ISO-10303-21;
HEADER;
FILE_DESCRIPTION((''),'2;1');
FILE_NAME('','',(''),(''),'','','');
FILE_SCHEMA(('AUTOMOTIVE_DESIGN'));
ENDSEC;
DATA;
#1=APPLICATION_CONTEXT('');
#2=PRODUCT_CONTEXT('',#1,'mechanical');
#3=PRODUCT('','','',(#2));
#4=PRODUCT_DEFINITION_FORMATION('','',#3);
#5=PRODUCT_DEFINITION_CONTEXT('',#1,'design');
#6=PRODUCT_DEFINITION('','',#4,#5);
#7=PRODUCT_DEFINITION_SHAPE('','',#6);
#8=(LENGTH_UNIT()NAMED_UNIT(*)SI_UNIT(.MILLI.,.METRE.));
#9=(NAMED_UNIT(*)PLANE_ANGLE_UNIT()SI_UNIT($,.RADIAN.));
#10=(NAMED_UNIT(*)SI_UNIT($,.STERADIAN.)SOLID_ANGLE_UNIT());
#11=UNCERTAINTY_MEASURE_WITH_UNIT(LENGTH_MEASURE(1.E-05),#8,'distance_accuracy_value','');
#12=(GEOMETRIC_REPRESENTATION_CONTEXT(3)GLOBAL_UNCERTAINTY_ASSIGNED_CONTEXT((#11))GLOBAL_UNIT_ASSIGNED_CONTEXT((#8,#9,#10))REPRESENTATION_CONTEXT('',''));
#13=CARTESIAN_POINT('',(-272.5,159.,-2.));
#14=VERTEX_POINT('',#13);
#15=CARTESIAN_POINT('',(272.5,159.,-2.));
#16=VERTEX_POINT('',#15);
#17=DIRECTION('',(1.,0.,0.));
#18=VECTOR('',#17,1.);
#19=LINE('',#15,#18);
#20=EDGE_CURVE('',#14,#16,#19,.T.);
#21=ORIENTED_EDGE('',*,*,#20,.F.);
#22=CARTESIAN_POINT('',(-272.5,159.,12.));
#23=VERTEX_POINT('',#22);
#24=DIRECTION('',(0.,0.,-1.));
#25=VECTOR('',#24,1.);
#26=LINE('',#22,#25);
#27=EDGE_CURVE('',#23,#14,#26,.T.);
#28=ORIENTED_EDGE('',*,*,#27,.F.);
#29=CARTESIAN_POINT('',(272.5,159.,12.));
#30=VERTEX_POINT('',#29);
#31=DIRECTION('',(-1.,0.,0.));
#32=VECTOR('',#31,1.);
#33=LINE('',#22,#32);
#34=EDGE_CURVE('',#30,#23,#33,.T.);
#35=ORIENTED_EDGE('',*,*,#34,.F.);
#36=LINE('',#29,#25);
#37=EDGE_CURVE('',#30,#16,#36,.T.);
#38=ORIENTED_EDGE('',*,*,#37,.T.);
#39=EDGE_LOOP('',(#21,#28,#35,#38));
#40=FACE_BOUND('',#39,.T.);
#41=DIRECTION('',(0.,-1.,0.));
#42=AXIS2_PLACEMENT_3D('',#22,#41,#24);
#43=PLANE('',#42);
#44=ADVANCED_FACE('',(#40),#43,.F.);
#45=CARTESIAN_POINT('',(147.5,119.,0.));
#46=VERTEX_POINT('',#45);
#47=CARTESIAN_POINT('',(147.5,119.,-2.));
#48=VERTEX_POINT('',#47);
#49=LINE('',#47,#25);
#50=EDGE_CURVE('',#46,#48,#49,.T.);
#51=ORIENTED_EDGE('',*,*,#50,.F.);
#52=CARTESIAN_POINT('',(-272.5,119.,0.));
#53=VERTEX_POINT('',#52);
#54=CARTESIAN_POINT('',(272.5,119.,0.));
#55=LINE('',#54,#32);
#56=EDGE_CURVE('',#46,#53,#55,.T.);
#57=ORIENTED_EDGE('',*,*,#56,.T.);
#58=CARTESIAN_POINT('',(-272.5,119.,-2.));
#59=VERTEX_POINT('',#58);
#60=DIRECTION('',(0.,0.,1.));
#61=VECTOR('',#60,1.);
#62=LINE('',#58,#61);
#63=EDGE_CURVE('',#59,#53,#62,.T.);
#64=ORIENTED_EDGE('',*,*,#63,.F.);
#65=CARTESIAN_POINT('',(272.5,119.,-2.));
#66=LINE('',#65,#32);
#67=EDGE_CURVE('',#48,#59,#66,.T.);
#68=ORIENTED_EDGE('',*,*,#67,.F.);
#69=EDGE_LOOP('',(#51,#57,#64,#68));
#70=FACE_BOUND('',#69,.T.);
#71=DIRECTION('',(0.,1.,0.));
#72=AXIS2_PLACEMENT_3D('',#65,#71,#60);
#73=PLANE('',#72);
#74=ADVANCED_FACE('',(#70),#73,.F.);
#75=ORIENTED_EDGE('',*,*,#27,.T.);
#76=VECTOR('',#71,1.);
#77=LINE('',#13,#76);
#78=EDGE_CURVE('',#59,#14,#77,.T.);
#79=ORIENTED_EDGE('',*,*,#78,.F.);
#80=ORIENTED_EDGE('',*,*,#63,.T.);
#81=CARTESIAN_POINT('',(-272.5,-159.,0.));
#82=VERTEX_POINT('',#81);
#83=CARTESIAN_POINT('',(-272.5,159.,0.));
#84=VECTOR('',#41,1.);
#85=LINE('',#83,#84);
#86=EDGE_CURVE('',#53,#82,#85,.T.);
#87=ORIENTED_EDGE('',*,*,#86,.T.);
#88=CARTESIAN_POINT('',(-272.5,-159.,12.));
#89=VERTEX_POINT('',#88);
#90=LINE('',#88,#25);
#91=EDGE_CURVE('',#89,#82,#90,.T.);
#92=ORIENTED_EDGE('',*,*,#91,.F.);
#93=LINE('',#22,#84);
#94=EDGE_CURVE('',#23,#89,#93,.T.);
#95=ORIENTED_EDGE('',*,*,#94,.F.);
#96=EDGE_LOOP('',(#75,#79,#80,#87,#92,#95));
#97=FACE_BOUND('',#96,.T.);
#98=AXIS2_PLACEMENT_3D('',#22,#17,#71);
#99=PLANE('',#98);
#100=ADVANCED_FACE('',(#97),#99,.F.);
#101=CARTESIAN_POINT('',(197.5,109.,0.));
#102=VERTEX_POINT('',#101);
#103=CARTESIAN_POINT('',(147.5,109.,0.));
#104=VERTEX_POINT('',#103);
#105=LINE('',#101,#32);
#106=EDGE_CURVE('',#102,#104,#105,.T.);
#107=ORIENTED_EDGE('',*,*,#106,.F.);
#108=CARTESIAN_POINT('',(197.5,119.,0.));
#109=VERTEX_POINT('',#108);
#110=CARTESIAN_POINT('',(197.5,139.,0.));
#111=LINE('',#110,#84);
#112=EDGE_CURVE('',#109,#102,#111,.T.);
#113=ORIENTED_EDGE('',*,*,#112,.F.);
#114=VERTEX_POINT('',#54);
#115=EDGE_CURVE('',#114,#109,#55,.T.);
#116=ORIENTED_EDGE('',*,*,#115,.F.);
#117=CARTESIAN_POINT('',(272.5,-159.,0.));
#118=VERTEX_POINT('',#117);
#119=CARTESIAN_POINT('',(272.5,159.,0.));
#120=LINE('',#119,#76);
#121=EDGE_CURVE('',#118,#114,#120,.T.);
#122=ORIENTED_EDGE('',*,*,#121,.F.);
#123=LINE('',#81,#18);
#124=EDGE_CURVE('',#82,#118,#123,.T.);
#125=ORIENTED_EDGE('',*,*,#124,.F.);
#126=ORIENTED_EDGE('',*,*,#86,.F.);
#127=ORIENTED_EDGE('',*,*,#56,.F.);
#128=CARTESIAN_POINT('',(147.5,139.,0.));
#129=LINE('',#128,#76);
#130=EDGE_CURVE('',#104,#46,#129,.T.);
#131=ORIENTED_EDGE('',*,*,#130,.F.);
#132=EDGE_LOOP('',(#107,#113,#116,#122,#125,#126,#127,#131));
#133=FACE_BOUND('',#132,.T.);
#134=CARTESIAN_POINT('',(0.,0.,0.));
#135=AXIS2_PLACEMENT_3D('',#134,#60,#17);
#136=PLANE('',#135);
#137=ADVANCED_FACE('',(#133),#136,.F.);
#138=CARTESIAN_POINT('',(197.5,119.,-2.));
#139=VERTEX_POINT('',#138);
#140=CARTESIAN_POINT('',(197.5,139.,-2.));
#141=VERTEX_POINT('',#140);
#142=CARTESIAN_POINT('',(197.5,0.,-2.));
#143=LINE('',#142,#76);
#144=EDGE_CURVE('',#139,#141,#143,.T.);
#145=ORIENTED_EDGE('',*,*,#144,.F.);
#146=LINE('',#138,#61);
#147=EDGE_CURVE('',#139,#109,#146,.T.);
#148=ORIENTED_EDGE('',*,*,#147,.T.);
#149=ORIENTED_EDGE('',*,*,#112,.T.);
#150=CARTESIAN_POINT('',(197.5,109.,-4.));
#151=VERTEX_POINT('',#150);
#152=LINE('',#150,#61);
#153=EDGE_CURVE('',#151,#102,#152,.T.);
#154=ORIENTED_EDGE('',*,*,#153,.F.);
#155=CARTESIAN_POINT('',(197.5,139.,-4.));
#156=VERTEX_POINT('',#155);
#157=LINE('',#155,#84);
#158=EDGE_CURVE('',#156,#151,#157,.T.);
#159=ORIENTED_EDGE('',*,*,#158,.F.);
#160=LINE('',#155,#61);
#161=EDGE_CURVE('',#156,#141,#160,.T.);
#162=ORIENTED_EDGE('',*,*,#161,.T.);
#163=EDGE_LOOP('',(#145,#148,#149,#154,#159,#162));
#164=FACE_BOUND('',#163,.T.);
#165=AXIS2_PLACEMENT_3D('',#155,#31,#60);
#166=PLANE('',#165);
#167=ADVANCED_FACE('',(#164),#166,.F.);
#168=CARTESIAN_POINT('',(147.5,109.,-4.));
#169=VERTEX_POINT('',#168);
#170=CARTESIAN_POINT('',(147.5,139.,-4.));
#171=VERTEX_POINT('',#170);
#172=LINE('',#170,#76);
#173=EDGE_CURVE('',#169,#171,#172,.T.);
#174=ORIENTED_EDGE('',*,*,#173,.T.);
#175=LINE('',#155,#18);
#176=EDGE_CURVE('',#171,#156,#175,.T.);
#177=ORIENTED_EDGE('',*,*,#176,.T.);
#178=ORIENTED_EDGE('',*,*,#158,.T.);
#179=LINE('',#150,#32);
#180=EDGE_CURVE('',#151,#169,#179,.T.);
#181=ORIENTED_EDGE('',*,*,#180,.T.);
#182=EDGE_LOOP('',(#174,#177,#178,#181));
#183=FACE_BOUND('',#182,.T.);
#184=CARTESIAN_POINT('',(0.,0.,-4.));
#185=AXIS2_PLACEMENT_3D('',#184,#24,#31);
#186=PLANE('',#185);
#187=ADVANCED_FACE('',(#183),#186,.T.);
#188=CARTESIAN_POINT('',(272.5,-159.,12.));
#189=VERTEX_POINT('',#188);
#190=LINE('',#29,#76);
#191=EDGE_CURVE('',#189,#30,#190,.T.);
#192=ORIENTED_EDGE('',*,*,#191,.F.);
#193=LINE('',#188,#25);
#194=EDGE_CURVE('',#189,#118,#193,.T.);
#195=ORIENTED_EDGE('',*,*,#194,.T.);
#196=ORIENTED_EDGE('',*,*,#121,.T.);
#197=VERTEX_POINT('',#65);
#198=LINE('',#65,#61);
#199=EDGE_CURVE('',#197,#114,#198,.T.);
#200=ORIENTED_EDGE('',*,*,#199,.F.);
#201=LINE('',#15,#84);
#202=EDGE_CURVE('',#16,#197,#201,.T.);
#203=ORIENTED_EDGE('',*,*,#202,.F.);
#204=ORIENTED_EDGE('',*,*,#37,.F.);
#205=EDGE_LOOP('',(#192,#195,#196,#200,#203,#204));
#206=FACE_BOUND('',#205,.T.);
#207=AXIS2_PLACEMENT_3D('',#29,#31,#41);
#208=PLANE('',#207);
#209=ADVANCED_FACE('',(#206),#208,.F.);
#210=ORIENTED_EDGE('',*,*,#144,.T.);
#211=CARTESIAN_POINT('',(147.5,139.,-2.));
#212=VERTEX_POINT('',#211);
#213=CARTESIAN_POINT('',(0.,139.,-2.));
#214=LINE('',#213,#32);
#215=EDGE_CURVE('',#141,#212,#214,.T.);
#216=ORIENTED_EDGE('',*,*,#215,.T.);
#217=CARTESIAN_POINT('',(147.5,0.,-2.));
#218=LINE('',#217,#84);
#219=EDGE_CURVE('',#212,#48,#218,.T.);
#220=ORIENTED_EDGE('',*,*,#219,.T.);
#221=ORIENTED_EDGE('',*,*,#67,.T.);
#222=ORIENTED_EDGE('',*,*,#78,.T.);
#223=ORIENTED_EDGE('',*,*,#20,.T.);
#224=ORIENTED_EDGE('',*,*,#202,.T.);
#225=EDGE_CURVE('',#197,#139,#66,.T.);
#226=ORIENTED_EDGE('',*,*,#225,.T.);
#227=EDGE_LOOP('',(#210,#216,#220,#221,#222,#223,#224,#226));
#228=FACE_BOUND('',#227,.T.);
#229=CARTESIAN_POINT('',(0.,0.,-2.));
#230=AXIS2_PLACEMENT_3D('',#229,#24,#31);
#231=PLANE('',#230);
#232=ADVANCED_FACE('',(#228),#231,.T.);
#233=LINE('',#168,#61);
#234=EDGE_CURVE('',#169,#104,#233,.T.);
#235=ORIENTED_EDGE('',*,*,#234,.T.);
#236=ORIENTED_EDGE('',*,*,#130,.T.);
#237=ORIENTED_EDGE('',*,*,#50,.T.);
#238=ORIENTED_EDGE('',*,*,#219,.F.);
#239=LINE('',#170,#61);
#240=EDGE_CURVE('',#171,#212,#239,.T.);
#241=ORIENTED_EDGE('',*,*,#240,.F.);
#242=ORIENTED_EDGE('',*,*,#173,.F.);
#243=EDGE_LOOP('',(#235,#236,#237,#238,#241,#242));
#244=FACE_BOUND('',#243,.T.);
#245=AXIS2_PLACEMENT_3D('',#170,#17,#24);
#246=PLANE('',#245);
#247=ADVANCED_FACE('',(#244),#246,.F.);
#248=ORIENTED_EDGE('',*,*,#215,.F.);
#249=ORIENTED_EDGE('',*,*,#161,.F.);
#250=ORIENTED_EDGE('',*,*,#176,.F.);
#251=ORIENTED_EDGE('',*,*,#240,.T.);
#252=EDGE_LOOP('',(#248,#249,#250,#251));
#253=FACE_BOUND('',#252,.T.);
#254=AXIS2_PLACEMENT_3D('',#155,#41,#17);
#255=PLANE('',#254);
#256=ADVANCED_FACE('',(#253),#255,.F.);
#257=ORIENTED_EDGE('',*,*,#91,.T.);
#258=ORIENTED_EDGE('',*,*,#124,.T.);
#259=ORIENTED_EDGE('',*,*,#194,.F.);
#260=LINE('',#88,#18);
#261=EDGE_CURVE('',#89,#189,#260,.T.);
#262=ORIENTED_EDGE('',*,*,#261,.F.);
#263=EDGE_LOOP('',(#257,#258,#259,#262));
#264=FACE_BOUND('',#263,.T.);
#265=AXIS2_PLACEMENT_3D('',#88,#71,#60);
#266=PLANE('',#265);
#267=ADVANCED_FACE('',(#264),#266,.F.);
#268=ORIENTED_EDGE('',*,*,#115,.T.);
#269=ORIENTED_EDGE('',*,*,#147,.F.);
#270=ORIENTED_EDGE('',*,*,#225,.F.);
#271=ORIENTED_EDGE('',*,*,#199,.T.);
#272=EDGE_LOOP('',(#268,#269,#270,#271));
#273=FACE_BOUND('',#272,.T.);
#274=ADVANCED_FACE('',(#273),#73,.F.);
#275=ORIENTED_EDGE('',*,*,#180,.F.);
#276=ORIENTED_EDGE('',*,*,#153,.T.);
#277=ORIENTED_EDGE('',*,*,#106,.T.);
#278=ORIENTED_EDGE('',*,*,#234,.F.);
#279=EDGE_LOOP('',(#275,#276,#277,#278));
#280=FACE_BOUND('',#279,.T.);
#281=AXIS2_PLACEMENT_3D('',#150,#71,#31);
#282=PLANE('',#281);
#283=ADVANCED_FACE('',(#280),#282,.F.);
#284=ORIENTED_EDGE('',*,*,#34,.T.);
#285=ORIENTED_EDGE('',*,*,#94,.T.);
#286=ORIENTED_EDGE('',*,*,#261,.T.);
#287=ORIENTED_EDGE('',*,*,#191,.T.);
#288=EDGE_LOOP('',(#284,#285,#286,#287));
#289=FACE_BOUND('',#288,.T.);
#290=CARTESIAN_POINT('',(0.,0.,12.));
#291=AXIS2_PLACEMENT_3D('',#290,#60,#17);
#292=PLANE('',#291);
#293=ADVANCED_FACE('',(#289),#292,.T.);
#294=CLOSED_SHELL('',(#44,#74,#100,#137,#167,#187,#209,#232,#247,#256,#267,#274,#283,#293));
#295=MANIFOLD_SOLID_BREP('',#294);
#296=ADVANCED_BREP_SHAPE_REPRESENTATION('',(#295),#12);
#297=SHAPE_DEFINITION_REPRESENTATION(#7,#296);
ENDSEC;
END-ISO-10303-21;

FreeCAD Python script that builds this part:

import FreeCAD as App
import Part
import Sketcher

doc = App.newDocument("Part")
body = doc.addObject("PartDesign::Body", "Body")

# Sketch on XY plane
sketch1 = doc.addObject("Sketcher::SketchObject", "Sketch")
body.addObject(sketch1)
sketch1.AttachmentSupport = (doc.XY_Plane, [""])
sketch1.MapMode = "FlatFace"
sketch1.addGeometry([
    Part.LineSegment(App.Vector(-272, 159, 0), App.Vector(-272, -159, 0)),
    Part.LineSegment(App.Vector(-272, -159, 0), App.Vector(272, -159, 0)),
    Part.LineSegment(App.Vector(272, -159, 0), App.Vector(272, 159, 0)),
    Part.LineSegment(App.Vector(272, 159, 0), App.Vector(-272, 159, 0)),
], False)
sketch1.addConstraint([
    Sketcher.Constraint("Coincident", 0, 2, 1, 1),
    Sketcher.Constraint("Coincident", 1, 2, 2, 1),
    Sketcher.Constraint("Coincident", 2, 2, 3, 1),
    Sketcher.Constraint("Coincident", 3, 2, 0, 1),
    Sketcher.Constraint("Vertical", 0),
    Sketcher.Constraint("Horizontal", 1),
    Sketcher.Constraint("Vertical", 2),
    Sketcher.Constraint("Horizontal", 3),
    Sketcher.Constraint("Symmetric", 0, 2, 2, 2, -1, 1),
    Sketcher.Constraint("DistanceX", 1, 1, 1, 2, 545.0),
    Sketcher.Constraint("DistanceY", 0, 2, 0, 1, 318.0),
])
pad1 = doc.addObject("PartDesign::Pad", "Pad")
body.addObject(pad1)
pad1.Profile = sketch1
pad1.Length = 12

# Sketch on XY plane
sketch2 = doc.addObject("Sketcher::SketchObject", "Sketch001")
body.addObject(sketch2)
sketch2.AttachmentSupport = (doc.XY_Plane, [""])
sketch2.MapMode = "FlatFace"
sketch2.addGeometry([
    Part.LineSegment(App.Vector(272, 159, 0), App.Vector(272, 119, 0)),
    Part.LineSegment(App.Vector(272, 119, 0), App.Vector(-272, 119, 0)),
    Part.LineSegment(App.Vector(-272, 119, 0), App.Vector(-272, 159, 0)),
    Part.LineSegment(App.Vector(-272, 159, 0), App.Vector(272, 159, 0)),
], False)
sketch2.addConstraint([
    Sketcher.Constraint("Coincident", 0, 2, 1, 1),
    Sketcher.Constraint("Coincident", 1, 2, 2, 1),
    Sketcher.Constraint("Coincident", 2, 2, 3, 1),
    Sketcher.Constraint("Coincident", 3, 2, 0, 1),
    Sketcher.Constraint("Vertical", 0),
    Sketcher.Constraint("Horizontal", 1),
    Sketcher.Constraint("Vertical", 2),
    Sketcher.Constraint("Horizontal", 3),
    Sketcher.Constraint("DistanceX", 1, 2, 1, 1, 545.0),
    Sketcher.Constraint("DistanceY", 0, 2, 0, 1, 40.0),
    Sketcher.Constraint("DistanceY", -1, 1, 0, 2, 119.0),
    Sketcher.Constraint("DistanceX", -1, 1, 0, 2, 272.5),
])
pad2 = doc.addObject("PartDesign::Pad", "Pad001")
body.addObject(pad2)
pad2.Profile = sketch2
pad2.Length = 2
pad2.Reversed = True

# Sketch on XY plane
sketch3 = doc.addObject("Sketcher::SketchObject", "Sketch002")
body.addObject(sketch3)
sketch3.AttachmentSupport = (doc.XY_Plane, [""])
sketch3.MapMode = "FlatFace"
sketch3.addGeometry([
    Part.LineSegment(App.Vector(198, 139, 0), App.Vector(198, 109, 0)),
    Part.LineSegment(App.Vector(198, 109, 0), App.Vector(148, 109, 0)),
    Part.LineSegment(App.Vector(148, 109, 0), App.Vector(148, 139, 0)),
    Part.LineSegment(App.Vector(148, 139, 0), App.Vector(198, 139, 0)),
], False)
sketch3.addConstraint([
    Sketcher.Constraint("Coincident", 0, 2, 1, 1),
    Sketcher.Constraint("Coincident", 1, 2, 2, 1),
    Sketcher.Constraint("Coincident", 2, 2, 3, 1),
    Sketcher.Constraint("Coincident", 3, 2, 0, 1),
    Sketcher.Constraint("Vertical", 0),
    Sketcher.Constraint("Horizontal", 1),
    Sketcher.Constraint("Vertical", 2),
    Sketcher.Constraint("Horizontal", 3),
    Sketcher.Constraint("DistanceX", 1, 2, 1, 1, 50.0),
    Sketcher.Constraint("DistanceY", 0, 2, 0, 1, 30.0),
    Sketcher.Constraint("DistanceY", -1, 1, 0, 2, 109.0),
    Sketcher.Constraint("DistanceX", -1, 1, 0, 2, 197.5),
])
pad3 = doc.addObject("PartDesign::Pad", "Pad002")
body.addObject(pad3)
pad3.Profile = sketch3
pad3.Length = 4
pad3.Reversed = True

doc.recompute()
